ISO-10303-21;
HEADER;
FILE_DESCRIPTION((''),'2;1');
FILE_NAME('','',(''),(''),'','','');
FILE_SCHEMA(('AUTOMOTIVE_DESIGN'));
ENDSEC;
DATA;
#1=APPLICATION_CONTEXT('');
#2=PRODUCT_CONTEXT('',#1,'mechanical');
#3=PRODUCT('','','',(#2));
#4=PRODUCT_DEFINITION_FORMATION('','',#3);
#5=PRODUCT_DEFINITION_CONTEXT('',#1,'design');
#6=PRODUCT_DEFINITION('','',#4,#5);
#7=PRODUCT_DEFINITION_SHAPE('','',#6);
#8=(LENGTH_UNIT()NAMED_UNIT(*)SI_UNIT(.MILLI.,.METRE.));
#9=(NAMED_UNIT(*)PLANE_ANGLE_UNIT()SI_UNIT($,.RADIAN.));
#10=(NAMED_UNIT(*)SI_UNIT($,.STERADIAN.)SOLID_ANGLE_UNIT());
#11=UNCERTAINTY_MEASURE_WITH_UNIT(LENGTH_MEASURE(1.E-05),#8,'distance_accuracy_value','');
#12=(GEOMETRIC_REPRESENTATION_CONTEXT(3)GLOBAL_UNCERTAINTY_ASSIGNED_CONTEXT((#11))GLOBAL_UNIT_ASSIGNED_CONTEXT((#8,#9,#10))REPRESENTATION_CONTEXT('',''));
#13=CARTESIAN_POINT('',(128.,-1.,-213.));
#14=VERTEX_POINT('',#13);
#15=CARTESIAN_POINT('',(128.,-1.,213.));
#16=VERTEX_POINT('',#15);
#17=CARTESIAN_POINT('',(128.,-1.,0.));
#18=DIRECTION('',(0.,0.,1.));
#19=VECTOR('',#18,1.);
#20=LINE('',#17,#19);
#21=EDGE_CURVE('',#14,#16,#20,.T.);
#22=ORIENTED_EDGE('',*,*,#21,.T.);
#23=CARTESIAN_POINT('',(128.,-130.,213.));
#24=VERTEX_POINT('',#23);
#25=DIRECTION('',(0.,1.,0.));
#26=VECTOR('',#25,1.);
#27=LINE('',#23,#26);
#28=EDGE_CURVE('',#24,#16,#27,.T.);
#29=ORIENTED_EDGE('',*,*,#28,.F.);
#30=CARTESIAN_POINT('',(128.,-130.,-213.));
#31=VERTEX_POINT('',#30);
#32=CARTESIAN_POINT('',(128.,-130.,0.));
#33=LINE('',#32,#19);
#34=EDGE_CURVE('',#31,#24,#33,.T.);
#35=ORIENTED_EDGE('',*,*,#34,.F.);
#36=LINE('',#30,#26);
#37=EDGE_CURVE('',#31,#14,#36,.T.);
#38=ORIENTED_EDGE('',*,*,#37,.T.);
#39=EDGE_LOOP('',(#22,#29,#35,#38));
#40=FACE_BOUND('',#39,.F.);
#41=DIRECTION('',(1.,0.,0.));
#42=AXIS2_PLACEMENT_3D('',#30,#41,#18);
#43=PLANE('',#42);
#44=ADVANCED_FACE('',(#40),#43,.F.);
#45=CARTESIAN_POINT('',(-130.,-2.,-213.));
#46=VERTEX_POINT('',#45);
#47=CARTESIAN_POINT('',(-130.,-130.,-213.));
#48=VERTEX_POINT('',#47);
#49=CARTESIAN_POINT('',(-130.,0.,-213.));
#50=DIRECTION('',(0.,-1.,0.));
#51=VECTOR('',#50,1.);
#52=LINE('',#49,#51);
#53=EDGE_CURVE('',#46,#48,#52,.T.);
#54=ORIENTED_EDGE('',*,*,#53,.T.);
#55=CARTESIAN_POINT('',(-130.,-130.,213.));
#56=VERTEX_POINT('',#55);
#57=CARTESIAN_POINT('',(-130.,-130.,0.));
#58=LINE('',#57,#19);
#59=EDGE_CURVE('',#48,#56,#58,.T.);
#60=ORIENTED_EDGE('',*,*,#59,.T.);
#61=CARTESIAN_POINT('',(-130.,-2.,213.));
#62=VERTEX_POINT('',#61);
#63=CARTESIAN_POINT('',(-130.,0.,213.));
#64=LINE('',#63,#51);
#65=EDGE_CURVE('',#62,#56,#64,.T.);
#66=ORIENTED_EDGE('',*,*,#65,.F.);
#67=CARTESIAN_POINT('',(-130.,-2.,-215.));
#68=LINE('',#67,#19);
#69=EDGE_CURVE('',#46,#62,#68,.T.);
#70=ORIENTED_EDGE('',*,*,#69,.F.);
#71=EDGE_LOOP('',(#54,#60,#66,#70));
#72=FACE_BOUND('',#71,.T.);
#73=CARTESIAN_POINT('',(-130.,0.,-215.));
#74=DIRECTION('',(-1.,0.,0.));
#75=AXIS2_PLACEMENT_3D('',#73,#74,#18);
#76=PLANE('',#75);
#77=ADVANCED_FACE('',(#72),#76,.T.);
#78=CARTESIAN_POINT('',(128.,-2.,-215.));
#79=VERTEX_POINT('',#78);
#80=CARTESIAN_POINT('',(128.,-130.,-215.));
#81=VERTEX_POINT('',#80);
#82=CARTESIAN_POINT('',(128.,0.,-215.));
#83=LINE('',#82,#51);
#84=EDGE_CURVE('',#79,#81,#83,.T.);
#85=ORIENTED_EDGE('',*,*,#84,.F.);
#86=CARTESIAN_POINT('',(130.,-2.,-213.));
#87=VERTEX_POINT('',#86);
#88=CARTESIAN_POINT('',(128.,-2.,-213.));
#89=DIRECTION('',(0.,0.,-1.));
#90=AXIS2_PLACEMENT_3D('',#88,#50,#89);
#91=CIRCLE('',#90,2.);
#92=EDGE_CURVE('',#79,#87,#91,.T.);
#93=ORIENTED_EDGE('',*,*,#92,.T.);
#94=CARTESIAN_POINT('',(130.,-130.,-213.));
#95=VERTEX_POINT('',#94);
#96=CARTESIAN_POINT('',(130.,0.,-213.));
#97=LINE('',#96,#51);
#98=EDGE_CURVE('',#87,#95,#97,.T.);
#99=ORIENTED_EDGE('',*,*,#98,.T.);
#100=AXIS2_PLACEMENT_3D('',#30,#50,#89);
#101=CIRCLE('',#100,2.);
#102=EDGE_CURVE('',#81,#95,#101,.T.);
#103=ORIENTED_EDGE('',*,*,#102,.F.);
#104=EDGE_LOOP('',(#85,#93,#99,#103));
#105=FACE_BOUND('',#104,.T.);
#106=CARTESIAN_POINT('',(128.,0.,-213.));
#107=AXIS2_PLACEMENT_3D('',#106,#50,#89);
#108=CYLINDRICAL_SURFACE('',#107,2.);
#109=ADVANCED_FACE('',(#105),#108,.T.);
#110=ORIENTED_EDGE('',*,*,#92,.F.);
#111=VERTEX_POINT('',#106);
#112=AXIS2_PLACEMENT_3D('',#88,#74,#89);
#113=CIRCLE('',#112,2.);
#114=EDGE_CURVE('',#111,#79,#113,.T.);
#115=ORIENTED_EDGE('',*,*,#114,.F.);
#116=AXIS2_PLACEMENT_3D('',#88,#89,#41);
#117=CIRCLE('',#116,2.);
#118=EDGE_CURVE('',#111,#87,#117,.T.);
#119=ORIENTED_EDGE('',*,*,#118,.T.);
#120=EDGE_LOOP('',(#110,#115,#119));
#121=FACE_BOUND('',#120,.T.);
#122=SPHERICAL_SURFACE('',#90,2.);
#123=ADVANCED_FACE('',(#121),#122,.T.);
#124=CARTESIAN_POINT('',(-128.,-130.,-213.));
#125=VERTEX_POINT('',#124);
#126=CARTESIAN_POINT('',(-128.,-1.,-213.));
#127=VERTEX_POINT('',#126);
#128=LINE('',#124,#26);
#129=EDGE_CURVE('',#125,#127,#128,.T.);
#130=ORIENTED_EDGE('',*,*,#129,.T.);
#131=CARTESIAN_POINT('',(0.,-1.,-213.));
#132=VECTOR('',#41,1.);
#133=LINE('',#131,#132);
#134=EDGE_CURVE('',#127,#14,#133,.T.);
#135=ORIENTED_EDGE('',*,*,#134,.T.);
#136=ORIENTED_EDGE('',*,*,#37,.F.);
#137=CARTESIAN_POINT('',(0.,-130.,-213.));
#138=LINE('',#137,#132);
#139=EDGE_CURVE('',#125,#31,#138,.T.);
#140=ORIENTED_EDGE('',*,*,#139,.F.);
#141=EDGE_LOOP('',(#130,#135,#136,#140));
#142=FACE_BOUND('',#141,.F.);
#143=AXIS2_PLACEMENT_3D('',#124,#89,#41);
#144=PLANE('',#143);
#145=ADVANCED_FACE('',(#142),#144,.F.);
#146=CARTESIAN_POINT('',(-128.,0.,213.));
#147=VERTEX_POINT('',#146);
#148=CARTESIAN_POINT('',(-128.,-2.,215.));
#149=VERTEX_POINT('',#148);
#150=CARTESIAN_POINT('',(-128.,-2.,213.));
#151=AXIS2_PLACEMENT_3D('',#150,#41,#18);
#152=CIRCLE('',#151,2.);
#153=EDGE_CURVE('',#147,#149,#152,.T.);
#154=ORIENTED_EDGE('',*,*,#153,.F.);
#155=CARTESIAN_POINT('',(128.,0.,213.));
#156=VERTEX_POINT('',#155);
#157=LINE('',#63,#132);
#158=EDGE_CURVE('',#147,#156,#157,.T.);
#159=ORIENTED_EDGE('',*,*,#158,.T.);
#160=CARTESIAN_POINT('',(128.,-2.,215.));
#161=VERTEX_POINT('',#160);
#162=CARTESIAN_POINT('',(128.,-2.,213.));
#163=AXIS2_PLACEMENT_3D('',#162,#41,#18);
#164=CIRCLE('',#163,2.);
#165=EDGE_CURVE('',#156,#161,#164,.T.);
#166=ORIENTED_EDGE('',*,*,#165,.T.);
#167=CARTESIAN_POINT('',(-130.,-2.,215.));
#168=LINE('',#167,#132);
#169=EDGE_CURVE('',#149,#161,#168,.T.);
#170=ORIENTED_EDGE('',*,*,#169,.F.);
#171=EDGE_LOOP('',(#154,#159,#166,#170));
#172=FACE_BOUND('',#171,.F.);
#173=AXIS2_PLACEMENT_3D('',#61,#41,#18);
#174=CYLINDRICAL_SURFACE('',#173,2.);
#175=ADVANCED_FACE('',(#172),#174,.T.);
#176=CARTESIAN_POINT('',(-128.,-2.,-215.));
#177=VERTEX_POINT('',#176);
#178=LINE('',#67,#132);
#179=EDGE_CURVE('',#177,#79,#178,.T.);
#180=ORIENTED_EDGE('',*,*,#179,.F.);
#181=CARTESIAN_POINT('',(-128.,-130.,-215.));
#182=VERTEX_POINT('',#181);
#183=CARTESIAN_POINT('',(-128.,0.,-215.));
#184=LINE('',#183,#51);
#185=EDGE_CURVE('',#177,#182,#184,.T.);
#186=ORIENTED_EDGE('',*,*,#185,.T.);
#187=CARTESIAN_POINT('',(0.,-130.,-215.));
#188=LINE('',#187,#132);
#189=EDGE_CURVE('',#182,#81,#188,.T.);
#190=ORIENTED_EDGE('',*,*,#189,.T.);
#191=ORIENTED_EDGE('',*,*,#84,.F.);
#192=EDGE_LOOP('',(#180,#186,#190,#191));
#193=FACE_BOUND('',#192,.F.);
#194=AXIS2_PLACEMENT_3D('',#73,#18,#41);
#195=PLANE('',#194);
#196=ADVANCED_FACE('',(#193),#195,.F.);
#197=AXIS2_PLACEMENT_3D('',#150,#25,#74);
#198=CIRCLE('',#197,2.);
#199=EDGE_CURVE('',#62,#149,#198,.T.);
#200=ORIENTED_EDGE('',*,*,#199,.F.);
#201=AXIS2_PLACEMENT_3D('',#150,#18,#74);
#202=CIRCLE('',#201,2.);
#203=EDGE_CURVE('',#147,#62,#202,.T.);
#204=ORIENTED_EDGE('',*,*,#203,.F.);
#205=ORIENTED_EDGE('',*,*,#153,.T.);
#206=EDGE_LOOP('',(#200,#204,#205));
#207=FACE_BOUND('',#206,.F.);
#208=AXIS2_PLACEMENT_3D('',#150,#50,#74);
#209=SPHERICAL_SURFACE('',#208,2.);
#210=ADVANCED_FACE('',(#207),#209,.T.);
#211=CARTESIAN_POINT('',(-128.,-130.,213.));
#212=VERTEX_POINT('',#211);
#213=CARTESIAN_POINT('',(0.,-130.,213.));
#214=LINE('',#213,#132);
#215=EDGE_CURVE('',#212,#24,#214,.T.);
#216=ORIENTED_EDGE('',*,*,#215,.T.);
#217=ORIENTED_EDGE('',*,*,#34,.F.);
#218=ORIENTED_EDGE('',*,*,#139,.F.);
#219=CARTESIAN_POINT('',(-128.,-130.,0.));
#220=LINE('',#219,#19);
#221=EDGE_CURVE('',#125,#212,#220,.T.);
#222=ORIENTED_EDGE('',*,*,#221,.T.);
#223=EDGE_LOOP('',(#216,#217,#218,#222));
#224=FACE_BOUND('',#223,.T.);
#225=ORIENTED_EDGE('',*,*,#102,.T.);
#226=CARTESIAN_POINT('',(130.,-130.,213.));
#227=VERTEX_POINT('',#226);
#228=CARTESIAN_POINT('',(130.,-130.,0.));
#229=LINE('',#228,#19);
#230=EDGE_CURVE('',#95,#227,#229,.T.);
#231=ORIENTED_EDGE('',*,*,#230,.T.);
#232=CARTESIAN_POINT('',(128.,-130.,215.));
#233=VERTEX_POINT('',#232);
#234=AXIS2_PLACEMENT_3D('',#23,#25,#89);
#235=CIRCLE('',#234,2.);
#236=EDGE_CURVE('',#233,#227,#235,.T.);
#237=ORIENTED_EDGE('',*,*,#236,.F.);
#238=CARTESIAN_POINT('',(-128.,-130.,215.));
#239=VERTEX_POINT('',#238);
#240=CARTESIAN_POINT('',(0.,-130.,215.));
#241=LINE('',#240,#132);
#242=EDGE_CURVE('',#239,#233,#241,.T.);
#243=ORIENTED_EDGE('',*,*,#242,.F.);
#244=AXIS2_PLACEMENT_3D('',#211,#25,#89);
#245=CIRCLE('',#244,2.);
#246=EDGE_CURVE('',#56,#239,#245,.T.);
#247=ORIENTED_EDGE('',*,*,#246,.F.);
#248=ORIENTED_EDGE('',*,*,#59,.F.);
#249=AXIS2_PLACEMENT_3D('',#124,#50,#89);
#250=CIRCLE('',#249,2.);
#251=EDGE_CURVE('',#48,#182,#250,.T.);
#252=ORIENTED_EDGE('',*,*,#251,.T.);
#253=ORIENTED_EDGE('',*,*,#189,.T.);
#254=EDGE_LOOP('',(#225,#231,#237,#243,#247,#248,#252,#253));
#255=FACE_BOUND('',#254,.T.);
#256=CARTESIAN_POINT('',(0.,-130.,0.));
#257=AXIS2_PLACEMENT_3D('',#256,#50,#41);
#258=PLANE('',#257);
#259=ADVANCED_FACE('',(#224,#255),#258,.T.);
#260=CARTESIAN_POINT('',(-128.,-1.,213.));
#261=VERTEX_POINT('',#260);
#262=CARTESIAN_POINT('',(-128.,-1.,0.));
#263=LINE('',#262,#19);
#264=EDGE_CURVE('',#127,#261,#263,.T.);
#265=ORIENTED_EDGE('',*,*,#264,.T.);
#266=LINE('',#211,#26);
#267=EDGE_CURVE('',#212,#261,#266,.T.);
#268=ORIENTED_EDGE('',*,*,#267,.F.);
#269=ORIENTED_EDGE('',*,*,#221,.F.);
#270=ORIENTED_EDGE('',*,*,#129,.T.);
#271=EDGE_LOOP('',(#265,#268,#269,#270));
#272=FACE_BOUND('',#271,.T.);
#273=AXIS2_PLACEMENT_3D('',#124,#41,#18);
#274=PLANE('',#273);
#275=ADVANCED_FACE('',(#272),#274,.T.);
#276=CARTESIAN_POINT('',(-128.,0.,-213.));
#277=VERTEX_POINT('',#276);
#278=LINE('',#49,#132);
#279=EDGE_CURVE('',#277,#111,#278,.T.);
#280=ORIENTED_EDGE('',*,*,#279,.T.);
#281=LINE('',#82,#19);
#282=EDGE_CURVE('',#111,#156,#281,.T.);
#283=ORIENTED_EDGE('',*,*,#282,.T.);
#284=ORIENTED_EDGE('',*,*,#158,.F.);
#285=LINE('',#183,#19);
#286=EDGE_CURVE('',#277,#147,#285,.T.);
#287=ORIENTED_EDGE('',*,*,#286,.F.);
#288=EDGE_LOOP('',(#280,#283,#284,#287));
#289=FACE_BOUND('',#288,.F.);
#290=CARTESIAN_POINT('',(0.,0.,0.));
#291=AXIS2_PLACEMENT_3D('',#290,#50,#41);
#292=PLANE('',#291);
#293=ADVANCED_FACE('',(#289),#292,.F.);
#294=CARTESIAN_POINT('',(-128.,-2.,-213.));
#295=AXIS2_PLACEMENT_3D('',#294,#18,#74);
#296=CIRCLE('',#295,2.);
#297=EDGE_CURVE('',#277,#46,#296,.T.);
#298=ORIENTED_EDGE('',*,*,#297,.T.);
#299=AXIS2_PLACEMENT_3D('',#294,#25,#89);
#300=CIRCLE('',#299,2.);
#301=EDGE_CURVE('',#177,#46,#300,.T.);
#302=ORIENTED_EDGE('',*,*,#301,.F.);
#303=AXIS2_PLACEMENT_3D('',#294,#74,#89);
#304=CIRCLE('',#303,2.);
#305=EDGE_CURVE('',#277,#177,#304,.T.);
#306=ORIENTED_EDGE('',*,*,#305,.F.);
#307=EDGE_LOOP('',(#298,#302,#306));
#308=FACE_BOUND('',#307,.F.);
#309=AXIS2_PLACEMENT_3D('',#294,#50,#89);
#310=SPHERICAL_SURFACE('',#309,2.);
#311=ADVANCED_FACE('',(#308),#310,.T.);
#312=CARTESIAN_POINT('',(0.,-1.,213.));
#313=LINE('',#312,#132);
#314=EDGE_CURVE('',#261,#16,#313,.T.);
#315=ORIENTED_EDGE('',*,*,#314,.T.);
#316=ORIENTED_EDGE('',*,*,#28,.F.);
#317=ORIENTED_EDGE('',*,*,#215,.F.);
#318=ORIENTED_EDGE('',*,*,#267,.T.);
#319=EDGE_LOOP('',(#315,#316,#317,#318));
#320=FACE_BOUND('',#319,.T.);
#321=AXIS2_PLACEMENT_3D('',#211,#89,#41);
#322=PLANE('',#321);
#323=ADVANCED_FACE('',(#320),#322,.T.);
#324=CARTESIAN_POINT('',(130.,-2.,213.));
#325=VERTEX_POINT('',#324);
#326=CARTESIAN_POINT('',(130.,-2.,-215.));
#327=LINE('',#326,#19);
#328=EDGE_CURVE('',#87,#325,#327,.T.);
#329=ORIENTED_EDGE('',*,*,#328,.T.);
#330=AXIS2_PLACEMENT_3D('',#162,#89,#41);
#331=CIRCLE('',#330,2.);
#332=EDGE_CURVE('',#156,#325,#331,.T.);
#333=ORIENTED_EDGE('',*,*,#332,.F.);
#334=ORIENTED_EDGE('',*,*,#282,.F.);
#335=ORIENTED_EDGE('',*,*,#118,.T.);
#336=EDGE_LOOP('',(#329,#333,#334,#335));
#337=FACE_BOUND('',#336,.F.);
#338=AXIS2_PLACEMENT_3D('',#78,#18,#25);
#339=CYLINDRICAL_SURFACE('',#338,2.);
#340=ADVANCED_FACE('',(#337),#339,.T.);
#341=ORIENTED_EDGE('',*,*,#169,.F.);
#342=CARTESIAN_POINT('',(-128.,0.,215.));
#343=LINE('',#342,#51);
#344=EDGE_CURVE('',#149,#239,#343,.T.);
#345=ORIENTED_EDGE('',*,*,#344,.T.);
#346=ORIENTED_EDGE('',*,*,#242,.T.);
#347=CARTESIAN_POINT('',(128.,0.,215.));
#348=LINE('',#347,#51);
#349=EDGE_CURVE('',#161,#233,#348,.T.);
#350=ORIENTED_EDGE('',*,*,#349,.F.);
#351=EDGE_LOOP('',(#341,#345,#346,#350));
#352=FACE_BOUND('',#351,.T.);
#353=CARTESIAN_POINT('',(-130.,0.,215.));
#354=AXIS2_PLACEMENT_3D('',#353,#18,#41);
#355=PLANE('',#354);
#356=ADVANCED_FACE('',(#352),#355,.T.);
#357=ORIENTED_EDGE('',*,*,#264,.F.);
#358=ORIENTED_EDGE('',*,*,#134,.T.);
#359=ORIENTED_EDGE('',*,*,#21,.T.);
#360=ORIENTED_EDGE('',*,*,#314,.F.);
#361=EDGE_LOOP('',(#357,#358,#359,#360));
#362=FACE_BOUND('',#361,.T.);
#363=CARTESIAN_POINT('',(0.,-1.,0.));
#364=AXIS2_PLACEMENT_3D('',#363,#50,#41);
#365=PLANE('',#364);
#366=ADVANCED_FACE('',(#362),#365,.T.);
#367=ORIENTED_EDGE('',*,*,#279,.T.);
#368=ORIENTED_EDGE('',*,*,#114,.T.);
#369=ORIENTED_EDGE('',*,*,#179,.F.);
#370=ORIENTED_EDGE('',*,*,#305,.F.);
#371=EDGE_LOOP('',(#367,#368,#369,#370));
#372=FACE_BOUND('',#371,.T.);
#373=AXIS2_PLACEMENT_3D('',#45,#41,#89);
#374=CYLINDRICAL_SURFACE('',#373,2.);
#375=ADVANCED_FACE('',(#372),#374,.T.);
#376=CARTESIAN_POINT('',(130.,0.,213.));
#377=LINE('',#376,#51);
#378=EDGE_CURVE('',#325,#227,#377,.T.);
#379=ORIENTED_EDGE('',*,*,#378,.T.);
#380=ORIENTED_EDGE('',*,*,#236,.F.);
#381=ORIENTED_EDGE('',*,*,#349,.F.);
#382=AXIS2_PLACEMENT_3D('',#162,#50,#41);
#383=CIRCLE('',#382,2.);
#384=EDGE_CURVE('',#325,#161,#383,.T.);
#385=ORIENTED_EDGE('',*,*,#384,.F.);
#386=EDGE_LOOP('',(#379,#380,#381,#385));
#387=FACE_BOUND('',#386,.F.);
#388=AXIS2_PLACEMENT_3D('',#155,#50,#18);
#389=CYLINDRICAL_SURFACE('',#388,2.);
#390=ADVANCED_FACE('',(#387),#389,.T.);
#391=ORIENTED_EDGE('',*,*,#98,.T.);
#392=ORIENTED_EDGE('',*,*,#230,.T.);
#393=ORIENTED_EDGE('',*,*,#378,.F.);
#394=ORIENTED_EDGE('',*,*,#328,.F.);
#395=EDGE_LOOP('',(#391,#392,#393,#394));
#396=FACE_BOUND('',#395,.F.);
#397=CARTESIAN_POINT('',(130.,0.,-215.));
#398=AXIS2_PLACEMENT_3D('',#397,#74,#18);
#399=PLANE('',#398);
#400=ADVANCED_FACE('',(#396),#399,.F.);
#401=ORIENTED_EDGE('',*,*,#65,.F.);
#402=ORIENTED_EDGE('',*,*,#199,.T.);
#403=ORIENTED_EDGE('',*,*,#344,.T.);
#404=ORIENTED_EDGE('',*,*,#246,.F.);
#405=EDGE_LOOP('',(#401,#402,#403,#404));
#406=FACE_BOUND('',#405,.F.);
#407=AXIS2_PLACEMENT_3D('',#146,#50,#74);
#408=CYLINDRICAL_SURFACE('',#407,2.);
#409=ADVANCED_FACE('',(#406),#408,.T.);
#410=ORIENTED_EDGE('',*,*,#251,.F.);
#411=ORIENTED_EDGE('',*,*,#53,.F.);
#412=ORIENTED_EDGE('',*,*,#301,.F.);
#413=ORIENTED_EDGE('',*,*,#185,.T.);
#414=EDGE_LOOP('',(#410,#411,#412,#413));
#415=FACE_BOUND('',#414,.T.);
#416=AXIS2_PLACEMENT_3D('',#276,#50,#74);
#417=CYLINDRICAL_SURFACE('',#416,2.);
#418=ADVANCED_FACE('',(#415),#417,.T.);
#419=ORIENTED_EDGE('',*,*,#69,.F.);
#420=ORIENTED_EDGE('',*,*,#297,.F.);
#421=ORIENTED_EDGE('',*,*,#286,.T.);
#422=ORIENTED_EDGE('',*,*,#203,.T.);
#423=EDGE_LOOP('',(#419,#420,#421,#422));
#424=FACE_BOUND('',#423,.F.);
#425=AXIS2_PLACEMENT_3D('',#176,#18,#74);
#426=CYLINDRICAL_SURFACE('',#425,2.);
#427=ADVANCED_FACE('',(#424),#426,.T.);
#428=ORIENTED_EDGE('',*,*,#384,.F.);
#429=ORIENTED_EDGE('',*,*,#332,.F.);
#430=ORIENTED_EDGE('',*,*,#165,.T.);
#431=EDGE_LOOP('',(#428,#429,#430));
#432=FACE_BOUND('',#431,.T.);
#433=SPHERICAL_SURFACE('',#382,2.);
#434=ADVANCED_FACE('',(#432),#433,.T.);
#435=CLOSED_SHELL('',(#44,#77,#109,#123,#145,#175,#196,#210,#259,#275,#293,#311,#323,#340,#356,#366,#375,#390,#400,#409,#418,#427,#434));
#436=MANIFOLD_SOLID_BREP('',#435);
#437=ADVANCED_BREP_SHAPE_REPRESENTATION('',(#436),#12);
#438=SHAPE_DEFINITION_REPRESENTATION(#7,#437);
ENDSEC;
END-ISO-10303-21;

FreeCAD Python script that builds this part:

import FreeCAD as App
import Part
import Sketcher


def edges_at(feature, points):
    """Names of the edges that pass closest to the given points."""
    edges = feature.Shape.Edges
    near = lambda p: min(range(len(edges)), key=lambda i: edges[i].distToShape(Part.Vertex(*p))[0])
    return sorted({f"Edge{near(p) + 1}" for p in points})


def add_polygon(sketch, points):
    """Adds a closed chain of lines whose ends are joined by coincident constraints."""
    first, n = sketch.GeometryCount, len(points)
    for a, b in zip(points, points[1:] + points[:1]):
        sketch.addGeometry(Part.LineSegment(App.Vector(*a, 0), App.Vector(*b, 0)), False)
    for i in range(n):
        sketch.addConstraint(Sketcher.Constraint("Coincident", first + i, 2, first + (i + 1) % n, 1))

doc = App.newDocument("Part")
body = doc.addObject("PartDesign::Body", "Body")

sketch1 = doc.addObject("Sketcher::SketchObject", "Sketch")
body.addObject(sketch1)
sketch1.AttachmentSupport = (doc.XZ_Plane, [""])
sketch1.MapMode = "FlatFace"
add_polygon(sketch1, [(-130, 215), (-130, -215), (130, -215), (130, 215)])
sketch1.addConstraint(Sketcher.Constraint("Vertical", 0))
sketch1.addConstraint(Sketcher.Constraint("Horizontal", 1))
sketch1.addConstraint(Sketcher.Constraint("Vertical", 2))
sketch1.addConstraint(Sketcher.Constraint("Horizontal", 3))
sketch1.addConstraint(Sketcher.Constraint("Symmetric", 0, 2, 2, 2, -1, 1))
sketch1.addConstraint(Sketcher.Constraint("DistanceX", 1, 1, 1, 2, 260.0))
sketch1.addConstraint(Sketcher.Constraint("DistanceY", 0, 2, 0, 1, 430.0))
pad1 = doc.addObject("PartDesign::Pad", "Pad")
body.addObject(pad1)
pad1.Profile = sketch1
pad1.Length = 130

sketch2 = doc.addObject("Sketcher::SketchObject", "Sketch001")
body.addObject(sketch2)
sketch2.AttachmentSupport = (doc.XZ_Plane, [""])
sketch2.MapMode = "FlatFace"
sketch2.AttachmentOffset = App.Placement(App.Vector(0, 0, 130), App.Rotation())
add_polygon(sketch2, [(-128, 213), (-128, -213), (128, -213), (128, 213)])
sketch2.addConstraint(Sketcher.Constraint("Vertical", 0))
sketch2.addConstraint(Sketcher.Constraint("Horizontal", 1))
sketch2.addConstraint(Sketcher.Constraint("Vertical", 2))
sketch2.addConstraint(Sketcher.Constraint("Horizontal", 3))
sketch2.addConstraint(Sketcher.Constraint("Symmetric", 0, 2, 2, 2, -1, 1))
sketch2.addConstraint(Sketcher.Constraint("DistanceX", 1, 1, 1, 2, 256.0))
sketch2.addConstraint(Sketcher.Constraint("DistanceY", 0, 2, 0, 1, 426.0))
pocket1 = doc.addObject("PartDesign::Pocket", "Pocket")
body.addObject(pocket1)
pocket1.Profile = sketch2
pocket1.Length = 129
doc.recompute()

fillet = doc.addObject("PartDesign::Fillet", "Fillet")
body.addObject(fillet)
fillet.Base = (pocket1, edges_at(pocket1, [
    (-130, -65, 215),
    (130, -65, 215),
    (-130, -65, -215),
    (130, -65, -215),
    (0, 0, -215),
    (130, 0, 0),
    (-130, 0, 0),
    (0, 0, 215),
]))
fillet.Radius = 2

doc.recompute()
